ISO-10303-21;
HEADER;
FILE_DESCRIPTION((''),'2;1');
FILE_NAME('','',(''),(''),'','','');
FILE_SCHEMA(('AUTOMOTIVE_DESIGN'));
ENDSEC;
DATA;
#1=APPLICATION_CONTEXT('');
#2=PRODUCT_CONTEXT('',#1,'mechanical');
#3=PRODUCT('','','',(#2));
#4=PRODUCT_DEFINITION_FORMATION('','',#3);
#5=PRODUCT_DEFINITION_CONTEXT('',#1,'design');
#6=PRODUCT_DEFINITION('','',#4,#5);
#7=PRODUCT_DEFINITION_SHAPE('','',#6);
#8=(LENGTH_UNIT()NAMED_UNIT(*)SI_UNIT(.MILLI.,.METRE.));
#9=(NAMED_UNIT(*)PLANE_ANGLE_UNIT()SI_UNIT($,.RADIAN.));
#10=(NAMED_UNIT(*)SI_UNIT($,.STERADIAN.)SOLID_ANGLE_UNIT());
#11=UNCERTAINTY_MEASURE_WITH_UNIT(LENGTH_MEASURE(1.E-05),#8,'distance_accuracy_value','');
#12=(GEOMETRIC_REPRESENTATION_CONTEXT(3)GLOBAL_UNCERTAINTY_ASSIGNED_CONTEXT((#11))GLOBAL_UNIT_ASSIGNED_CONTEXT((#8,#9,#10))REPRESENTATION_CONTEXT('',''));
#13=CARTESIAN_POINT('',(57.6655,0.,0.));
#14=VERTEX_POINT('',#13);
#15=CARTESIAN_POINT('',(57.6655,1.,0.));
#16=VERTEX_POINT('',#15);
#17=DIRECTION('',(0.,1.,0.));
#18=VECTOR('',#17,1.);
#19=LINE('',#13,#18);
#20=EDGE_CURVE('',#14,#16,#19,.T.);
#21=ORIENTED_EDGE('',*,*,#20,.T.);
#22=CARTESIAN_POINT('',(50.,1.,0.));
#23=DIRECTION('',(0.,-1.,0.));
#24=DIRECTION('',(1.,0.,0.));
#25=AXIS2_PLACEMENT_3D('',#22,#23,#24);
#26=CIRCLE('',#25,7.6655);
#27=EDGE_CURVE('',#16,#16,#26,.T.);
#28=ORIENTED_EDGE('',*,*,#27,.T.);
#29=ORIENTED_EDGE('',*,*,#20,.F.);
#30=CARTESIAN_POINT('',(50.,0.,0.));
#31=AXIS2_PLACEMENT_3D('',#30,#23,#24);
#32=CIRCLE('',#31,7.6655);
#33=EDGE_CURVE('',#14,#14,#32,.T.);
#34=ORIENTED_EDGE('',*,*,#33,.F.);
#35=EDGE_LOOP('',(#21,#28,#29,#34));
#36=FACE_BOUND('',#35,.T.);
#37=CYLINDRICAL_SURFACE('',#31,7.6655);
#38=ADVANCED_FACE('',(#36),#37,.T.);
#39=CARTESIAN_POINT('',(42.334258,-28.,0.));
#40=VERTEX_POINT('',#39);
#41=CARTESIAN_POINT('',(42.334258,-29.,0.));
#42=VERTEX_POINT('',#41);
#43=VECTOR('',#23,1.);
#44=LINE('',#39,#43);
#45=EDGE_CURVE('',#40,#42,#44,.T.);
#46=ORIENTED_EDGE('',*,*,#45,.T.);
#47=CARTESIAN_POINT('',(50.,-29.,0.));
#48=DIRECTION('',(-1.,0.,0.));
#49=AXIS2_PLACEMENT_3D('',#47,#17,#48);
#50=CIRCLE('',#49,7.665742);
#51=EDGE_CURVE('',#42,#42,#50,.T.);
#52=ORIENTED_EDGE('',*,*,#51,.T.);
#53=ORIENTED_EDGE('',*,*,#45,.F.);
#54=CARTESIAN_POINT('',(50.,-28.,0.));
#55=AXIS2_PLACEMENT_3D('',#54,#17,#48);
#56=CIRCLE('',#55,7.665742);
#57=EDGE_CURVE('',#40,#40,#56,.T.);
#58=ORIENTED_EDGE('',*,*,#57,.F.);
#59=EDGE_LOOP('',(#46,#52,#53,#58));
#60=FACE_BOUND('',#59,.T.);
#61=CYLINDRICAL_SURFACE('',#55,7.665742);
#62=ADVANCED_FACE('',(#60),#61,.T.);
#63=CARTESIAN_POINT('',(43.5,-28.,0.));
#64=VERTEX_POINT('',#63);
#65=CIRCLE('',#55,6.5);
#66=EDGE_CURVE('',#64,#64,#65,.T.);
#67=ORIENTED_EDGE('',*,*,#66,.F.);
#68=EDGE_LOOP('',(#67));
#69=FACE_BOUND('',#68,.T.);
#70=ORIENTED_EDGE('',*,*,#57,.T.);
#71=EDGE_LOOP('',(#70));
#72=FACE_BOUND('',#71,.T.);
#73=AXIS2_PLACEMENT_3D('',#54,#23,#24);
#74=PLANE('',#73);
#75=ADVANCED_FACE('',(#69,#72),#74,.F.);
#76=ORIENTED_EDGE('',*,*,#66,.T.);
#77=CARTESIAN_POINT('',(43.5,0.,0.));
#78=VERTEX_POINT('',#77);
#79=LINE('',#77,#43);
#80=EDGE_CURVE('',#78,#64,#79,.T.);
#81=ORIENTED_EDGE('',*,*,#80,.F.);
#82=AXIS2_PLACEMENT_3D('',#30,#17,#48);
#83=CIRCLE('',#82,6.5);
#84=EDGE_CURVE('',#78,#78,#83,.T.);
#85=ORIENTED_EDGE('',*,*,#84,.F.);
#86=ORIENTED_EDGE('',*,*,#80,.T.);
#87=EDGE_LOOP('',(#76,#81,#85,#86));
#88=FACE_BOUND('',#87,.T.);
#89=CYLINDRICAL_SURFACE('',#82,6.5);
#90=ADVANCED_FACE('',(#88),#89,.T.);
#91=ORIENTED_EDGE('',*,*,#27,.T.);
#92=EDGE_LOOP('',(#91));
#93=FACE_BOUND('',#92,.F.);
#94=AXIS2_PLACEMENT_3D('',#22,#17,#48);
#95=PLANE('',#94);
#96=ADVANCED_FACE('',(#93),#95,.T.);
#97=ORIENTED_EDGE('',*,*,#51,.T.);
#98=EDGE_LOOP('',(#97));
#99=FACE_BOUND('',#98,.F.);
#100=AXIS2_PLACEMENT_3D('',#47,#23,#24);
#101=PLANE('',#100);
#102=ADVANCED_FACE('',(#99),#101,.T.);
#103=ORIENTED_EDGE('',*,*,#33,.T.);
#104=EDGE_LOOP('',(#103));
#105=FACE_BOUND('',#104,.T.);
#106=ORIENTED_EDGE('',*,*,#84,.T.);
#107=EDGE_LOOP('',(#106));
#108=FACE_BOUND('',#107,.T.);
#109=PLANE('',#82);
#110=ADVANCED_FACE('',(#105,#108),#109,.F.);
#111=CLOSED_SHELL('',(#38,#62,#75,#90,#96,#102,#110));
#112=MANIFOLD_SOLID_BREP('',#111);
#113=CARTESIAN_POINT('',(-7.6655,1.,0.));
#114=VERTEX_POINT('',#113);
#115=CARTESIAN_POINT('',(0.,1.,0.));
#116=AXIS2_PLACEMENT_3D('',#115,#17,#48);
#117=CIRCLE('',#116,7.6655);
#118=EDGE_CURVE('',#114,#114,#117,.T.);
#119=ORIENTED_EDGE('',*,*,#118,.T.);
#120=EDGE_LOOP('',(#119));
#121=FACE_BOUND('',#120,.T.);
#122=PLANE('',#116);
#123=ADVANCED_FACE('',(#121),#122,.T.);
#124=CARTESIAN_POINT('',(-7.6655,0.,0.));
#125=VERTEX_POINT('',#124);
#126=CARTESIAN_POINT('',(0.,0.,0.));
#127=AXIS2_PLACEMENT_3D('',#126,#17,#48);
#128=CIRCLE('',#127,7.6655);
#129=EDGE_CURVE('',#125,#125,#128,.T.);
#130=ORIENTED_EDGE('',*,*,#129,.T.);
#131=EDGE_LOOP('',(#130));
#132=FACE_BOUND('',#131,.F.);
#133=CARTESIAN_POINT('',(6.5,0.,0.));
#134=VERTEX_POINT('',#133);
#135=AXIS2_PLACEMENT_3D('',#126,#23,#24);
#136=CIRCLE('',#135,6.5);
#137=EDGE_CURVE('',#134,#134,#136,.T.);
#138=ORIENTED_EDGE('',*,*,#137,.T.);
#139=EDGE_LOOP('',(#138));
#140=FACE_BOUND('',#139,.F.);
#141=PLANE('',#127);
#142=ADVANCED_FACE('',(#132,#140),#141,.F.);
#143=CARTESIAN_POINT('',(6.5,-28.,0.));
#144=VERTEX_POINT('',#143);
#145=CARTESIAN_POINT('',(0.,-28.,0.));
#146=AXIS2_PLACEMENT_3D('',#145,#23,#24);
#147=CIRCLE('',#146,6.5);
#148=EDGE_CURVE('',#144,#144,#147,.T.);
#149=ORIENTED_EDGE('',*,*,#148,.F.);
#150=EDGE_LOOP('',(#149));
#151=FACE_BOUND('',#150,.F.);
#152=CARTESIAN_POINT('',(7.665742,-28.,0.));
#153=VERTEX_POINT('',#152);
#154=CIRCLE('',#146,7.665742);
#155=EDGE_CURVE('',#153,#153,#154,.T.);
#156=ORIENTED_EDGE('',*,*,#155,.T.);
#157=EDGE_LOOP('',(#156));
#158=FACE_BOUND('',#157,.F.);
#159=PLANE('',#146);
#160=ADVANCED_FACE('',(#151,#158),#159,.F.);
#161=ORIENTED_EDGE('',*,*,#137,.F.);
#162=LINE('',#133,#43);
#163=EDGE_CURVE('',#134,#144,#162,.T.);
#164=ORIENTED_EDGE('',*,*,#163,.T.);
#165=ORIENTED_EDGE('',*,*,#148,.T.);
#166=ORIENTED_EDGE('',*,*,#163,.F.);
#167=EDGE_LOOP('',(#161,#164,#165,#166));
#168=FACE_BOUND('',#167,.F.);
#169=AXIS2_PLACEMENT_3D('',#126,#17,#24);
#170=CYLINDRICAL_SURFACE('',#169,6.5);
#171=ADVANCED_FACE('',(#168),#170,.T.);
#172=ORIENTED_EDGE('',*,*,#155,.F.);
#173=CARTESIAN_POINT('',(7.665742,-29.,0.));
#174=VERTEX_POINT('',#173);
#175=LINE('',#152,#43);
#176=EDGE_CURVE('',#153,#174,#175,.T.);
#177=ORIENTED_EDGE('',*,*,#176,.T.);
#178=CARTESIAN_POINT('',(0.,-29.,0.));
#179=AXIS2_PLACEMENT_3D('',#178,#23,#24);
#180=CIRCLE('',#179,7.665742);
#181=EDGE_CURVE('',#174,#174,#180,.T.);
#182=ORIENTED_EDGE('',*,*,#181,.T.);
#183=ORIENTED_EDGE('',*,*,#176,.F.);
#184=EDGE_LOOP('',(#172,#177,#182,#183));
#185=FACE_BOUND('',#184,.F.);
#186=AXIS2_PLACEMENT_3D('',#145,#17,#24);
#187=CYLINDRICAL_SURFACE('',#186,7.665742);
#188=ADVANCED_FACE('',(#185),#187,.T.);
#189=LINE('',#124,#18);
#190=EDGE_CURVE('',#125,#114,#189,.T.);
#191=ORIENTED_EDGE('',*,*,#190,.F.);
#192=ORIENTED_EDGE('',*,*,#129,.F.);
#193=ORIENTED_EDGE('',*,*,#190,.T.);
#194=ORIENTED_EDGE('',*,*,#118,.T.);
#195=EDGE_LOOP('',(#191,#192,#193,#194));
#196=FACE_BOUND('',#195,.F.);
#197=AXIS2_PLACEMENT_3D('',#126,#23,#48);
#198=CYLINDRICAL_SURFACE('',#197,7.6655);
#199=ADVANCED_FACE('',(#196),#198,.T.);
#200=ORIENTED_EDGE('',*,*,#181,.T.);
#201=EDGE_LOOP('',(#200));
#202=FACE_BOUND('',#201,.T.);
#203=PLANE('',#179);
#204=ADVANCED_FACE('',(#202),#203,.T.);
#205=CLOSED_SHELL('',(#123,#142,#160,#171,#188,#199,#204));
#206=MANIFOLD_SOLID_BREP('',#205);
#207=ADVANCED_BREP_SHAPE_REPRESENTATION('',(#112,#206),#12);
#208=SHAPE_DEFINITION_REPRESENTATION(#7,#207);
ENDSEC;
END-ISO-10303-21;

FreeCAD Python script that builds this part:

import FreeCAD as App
import Part
import Sketcher
Q = App.Units.Quantity

doc = App.newDocument("Part")
body = doc.addObject("PartDesign::Body", "Body")

# Sketch on XZ plane
sketch1 = body.newObject("Sketcher::SketchObject", "Sketch")
sketch1.AttachmentSupport = (doc.getObject("XZ_Plane"), [""])
sketch1.MapMode = "FlatFace"
sketch1.addGeometry(Part.Circle(App.Vector(0, 0, 0), App.Vector(0, 0, 1), 6), False)
sketch1.addConstraint(Sketcher.Constraint("Coincident", 0, 3, -1, 1))
sketch1.addConstraint(Sketcher.Constraint("Diameter", 0, Q("13 mm")))
pad1 = body.newObject("PartDesign::Pad", "Pad")
pad1.Profile = sketch1
pad1.Length = 28

# Sketch on XZ plane
sketch2 = body.newObject("Sketcher::SketchObject", "Sketch001")
sketch2.AttachmentSupport = (doc.getObject("XZ_Plane"), [""])
sketch2.MapMode = "FlatFace"
sketch2.AttachmentOffset = App.Placement(App.Vector(0, 0, 28), App.Rotation())
sketch2.addGeometry(Part.Circle(App.Vector(0, 0, 0), App.Vector(0, 0, 1), 8), False)
sketch2.addConstraint(Sketcher.Constraint("Coincident", 0, 3, -1, 1))
sketch2.addConstraint(Sketcher.Constraint("Diameter", 0, Q("15.331484 mm")))
pad2 = body.newObject("PartDesign::Pad", "Pad001")
pad2.Profile = sketch2
pad2.Length = 1

# Sketch on XZ plane
sketch3 = body.newObject("Sketcher::SketchObject", "Sketch002")
sketch3.AttachmentSupport = (doc.getObject("XZ_Plane"), [""])
sketch3.MapMode = "FlatFace"
sketch3.addGeometry(Part.Circle(App.Vector(0, 0, 0), App.Vector(0, 0, 1), 8), False)
sketch3.addConstraint(Sketcher.Constraint("Coincident", 0, 3, -1, 1))
sketch3.addConstraint(Sketcher.Constraint("Diameter", 0, Q("15.331 mm")))
pad3 = body.newObject("PartDesign::Pad", "Pad002")
pad3.Profile = sketch3
pad3.Length = 1
pad3.Reversed = True
body2 = doc.addObject("PartDesign::Body", "Body001")
doc.recompute()

mirroring = doc.addObject("Part::Mirroring", "Mirroring")
mirroring.Source = body
mirroring.Base = App.Vector(25, 0, 0)
mirroring.Normal = App.Vector(1, 0, 0)
body2.BaseFeature = mirroring
doc.recompute()
mirroring.Visibility = False

doc.recompute()
